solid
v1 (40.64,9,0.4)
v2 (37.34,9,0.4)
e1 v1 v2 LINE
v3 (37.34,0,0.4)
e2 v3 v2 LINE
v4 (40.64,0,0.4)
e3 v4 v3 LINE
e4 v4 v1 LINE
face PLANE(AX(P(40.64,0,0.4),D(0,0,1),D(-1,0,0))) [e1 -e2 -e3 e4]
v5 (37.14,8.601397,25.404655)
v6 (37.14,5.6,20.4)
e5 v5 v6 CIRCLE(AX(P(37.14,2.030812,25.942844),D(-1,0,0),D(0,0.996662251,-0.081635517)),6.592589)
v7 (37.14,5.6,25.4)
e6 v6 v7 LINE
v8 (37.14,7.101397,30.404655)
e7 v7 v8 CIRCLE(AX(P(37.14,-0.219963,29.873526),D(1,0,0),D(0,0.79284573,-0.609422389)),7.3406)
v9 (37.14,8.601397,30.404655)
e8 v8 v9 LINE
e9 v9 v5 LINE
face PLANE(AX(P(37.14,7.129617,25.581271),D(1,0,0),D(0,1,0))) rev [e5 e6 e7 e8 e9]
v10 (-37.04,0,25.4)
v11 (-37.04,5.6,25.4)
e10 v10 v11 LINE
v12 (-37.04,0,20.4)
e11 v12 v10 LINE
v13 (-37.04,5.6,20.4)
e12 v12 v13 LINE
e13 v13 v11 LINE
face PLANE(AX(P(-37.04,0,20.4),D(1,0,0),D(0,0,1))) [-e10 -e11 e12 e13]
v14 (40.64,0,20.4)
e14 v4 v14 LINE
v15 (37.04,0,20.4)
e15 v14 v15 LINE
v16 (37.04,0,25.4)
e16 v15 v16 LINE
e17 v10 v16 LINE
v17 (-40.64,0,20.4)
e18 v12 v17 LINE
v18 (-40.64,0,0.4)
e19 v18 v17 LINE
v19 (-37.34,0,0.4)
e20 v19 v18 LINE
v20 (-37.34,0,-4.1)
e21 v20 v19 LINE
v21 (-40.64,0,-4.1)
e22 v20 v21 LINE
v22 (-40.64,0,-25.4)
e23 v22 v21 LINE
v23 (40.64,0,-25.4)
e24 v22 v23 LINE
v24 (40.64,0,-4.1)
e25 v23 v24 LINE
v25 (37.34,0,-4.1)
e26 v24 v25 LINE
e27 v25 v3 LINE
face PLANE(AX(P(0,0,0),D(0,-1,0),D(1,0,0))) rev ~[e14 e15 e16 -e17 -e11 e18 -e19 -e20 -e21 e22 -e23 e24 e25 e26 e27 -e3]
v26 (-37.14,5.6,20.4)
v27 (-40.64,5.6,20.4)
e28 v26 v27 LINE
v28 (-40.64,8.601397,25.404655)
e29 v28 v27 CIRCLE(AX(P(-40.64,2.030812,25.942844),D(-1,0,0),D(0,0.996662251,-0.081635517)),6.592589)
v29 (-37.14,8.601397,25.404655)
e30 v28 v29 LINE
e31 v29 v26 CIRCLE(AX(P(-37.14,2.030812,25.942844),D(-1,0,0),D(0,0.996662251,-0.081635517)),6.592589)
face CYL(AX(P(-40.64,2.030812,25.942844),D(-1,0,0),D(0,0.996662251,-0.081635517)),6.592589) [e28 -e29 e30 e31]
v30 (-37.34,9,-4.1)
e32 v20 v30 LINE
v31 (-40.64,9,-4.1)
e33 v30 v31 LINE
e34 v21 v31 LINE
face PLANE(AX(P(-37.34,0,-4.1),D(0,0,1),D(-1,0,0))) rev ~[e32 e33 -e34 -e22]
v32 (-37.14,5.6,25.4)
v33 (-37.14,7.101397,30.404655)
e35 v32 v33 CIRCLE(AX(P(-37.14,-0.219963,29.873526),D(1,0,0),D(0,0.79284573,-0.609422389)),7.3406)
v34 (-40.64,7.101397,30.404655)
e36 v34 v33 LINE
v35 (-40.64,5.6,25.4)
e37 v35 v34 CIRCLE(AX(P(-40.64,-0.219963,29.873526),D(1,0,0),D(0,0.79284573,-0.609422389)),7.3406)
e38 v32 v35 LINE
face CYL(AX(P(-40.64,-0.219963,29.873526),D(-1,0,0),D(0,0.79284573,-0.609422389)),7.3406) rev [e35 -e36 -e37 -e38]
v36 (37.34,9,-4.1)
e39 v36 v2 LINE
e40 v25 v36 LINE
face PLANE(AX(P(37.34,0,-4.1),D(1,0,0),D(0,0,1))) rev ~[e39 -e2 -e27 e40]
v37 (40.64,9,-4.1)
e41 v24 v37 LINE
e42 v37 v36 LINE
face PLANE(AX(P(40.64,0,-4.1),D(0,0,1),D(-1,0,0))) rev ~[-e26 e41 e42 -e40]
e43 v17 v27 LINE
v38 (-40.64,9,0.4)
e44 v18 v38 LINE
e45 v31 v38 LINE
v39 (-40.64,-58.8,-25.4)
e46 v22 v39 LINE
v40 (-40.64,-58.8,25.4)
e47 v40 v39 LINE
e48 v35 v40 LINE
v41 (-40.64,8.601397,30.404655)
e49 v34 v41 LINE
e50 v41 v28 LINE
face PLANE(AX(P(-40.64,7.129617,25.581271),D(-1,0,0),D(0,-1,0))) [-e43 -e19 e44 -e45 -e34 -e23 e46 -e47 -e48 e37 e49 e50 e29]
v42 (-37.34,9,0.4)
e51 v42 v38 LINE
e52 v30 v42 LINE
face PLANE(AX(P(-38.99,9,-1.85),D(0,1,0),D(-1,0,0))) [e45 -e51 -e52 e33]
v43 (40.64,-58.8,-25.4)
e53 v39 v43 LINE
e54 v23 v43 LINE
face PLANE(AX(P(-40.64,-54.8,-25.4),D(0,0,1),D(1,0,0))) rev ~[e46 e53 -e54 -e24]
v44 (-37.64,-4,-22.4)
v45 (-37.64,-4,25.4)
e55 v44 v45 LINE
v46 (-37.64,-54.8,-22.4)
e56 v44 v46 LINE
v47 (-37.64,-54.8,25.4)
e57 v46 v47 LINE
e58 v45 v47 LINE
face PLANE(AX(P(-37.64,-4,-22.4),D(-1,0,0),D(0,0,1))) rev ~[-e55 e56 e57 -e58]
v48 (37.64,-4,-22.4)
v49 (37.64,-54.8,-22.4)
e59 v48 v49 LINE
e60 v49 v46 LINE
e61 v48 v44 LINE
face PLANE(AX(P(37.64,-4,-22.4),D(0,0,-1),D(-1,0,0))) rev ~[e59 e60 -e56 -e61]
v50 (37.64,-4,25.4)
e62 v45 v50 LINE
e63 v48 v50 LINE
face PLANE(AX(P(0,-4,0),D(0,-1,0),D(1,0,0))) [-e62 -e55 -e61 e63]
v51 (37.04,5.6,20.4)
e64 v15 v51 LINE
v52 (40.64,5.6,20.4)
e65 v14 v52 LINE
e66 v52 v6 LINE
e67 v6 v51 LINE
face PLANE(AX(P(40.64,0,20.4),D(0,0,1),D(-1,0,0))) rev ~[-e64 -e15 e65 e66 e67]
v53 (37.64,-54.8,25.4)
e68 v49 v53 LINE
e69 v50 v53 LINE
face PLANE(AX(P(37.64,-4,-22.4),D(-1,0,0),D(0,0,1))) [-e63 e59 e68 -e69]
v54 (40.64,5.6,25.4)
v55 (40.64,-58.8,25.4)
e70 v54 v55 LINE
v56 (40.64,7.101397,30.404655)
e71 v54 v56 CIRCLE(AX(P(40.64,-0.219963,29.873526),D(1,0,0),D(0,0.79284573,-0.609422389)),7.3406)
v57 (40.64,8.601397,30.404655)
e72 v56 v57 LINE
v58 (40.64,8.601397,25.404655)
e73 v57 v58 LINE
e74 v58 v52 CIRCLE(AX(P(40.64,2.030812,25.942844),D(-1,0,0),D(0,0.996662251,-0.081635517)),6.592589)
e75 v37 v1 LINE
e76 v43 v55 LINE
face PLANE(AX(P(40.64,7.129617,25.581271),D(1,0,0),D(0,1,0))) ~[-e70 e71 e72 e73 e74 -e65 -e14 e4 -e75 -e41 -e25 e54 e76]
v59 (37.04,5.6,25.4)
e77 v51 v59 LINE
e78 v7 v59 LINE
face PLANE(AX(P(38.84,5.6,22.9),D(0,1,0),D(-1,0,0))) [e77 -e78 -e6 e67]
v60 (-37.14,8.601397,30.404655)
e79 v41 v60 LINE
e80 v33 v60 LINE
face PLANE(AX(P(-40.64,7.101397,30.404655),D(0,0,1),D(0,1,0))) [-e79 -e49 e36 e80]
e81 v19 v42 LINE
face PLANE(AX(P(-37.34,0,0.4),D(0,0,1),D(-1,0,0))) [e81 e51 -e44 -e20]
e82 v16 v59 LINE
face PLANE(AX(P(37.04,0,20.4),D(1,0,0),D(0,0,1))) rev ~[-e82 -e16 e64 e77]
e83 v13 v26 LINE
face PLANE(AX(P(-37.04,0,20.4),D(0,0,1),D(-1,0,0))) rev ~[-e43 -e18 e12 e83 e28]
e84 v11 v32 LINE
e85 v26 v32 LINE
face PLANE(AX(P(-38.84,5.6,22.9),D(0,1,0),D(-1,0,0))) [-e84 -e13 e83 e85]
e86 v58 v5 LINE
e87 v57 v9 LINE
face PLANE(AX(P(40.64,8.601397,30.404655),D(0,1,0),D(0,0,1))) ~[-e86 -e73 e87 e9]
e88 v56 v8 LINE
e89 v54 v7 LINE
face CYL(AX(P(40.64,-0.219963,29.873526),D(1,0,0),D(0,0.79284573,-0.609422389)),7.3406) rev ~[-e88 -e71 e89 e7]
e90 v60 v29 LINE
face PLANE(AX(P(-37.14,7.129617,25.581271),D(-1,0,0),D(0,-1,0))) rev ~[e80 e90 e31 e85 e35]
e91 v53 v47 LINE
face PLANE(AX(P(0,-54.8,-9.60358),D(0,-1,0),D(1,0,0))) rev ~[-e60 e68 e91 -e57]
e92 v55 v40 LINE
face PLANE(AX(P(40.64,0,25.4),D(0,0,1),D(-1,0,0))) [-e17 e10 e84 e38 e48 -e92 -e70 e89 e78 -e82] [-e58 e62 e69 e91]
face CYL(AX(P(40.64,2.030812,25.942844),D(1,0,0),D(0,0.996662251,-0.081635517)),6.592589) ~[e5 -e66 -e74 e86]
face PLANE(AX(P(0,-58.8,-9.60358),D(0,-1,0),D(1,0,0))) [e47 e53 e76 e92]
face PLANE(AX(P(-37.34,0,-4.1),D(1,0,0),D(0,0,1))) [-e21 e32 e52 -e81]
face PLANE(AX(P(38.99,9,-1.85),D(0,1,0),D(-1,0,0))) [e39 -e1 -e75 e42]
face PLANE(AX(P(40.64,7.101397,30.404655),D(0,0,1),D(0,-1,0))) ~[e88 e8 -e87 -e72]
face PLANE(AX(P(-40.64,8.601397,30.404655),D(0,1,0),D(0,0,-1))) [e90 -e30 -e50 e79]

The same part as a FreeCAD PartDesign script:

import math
import FreeCAD as App
import Part
import Sketcher
from FreeCAD import Vector


def add_polygon(sketch, points):
    """Adds a closed chain of lines whose ends are joined by coincident constraints."""
    first, n = sketch.GeometryCount, len(points)
    for a, b in zip(points, points[1:] + points[:1]):
        sketch.addGeometry(Part.LineSegment(App.Vector(*a, 0), App.Vector(*b, 0)), False)
    for i in range(n):
        sketch.addConstraint(Sketcher.Constraint("Coincident", first + i, 2, first + (i + 1) % n, 1))

doc = App.newDocument("Part")
body = doc.addObject("PartDesign::Body", "Body")

# Sketch on XZ plane
sketch1 = body.newObject("Sketcher::SketchObject", "Sketch")
sketch1.AttachmentSupport = (doc.getObject("XZ_Plane"), [""])
sketch1.MapMode = "FlatFace"
add_polygon(sketch1, [(-41, 25), (-41, -25), (41, -25), (41, 25)])  # lines 0-3
sketch1.addConstraint([
    Sketcher.Constraint("Vertical", 0),
    Sketcher.Constraint("Horizontal", 1),
    Sketcher.Constraint("Vertical", 2),
    Sketcher.Constraint("Horizontal", 3),
    Sketcher.Constraint("Symmetric", 0, 2, 2, 2, -1, 1),
    Sketcher.Constraint("DistanceY", 0, 2, 0, 1, 50.8),
    Sketcher.Constraint("DistanceX", 1, 1, 1, 2, 81.28),
])
pad1 = body.newObject("PartDesign::Pad", "Pad")
pad1.Profile = sketch1
pad1.Length = 4

# Sketch on XZ plane
sketch2 = body.newObject("Sketcher::SketchObject", "Sketch001")
sketch2.AttachmentSupport = (doc.getObject("XZ_Plane"), [""])
sketch2.MapMode = "FlatFace"
sketch2.AttachmentOffset = App.Placement(Vector(0, 0, 4), App.Rotation())
add_polygon(sketch2, [(-40.6, 25.4), (-40.6, -25.4), (40.6, -25.4), (40.6, 25.4), (37.6, 25.4), (37.6, -22.4), (-37.6, -22.4), (-37.6, 25.4)])  # lines 0-7
sketch2.addConstraint([
    Sketcher.Constraint("Vertical", 0),
    Sketcher.Constraint("Horizontal", 1),
    Sketcher.Constraint("Vertical", 2),
    Sketcher.Constraint("Horizontal", 3),
    Sketcher.Constraint("Vertical", 4),
    Sketcher.Constraint("Horizontal", 5),
    Sketcher.Constraint("Vertical", 6),
    Sketcher.Constraint("Horizontal", 7),
    Sketcher.Constraint("Symmetric", 0, 2, 2, 2, -1, 1),
    Sketcher.Constraint("Symmetric", 3, 2, 6, 2, -2),
    Sketcher.Constraint("DistanceX", 3, 2, 3, 1, 3.0),
    Sketcher.Constraint("DistanceY", 0, 2, 0, 1, 50.8),
    Sketcher.Constraint("DistanceY", 4, 2, 4, 1, 47.8),
    Sketcher.Constraint("DistanceX", 1, 1, 1, 2, 81.28),
])
pad2 = body.newObject("PartDesign::Pad", "Pad001")
pad2.Profile = sketch2
pad2.Length = 50.8

# Sketch on XZ plane
sketch3 = body.newObject("Sketcher::SketchObject", "Sketch002")
sketch3.AttachmentSupport = (doc.getObject("XZ_Plane"), [""])
sketch3.MapMode = "FlatFace"
sketch3.AttachmentOffset = App.Placement(Vector(0, 0, 54.8), App.Rotation())
add_polygon(sketch3, [(-41, 25), (-41, -25), (41, -25), (41, 25)])  # lines 0-3
sketch3.addConstraint([
    Sketcher.Constraint("Vertical", 0),
    Sketcher.Constraint("Horizontal", 1),
    Sketcher.Constraint("Vertical", 2),
    Sketcher.Constraint("Horizontal", 3),
    Sketcher.Constraint("Symmetric", 0, 2, 2, 2, -1, 1),
    Sketcher.Constraint("DistanceY", 0, 2, 0, 1, 50.8),
    Sketcher.Constraint("DistanceX", 1, 1, 1, 2, 81.28),
])
pad3 = body.newObject("PartDesign::Pad", "Pad002")
pad3.Profile = sketch3
pad3.Length = 4

# Sketch on XZ plane
sketch4 = body.newObject("Sketcher::SketchObject", "Sketch003")
sketch4.AttachmentSupport = (doc.getObject("XZ_Plane"), [""])
sketch4.MapMode = "FlatFace"
add_polygon(sketch4, [(40.6, 25.4), (40.6, 20.4), (37, 20.4), (37, 25.4)])  # lines 0-3
add_polygon(sketch4, [(-37, 25.4), (-37, 20.4), (-40.6, 20.4), (-40.6, 25.4)])  # lines 4-7
sketch4.addConstraint([
    Sketcher.Constraint("Vertical", 0),
    Sketcher.Constraint("Horizontal", 1),
    Sketcher.Constraint("Vertical", 2),
    Sketcher.Constraint("Horizontal", 3),
    Sketcher.Constraint("Vertical", 4),
    Sketcher.Constraint("Horizontal", 5),
    Sketcher.Constraint("Vertical", 6),
    Sketcher.Constraint("Horizontal", 7),
    Sketcher.Constraint("Symmetric", 1, 2, 4, 2, -2),
    Sketcher.Constraint("Symmetric", 3, 2, 6, 2, -2),
    Sketcher.Constraint("DistanceY", 0, 2, 0, 1, 5.0),
    Sketcher.Constraint("DistanceX", 1, 2, 1, 1, 3.6),
    Sketcher.Constraint("DistanceY", -1, 1, 0, 2, 20.4),
    Sketcher.Constraint("DistanceX", -1, 1, 0, 2, 40.64),
])
pad4 = body.newObject("PartDesign::Pad", "Pad003")
pad4.Profile = sketch4
pad4.Length = 5.6
pad4.Reversed = True

# Sketch on XZ plane
sketch5 = body.newObject("Sketcher::SketchObject", "Sketch004")
sketch5.AttachmentSupport = (doc.getObject("XZ_Plane"), [""])
sketch5.MapMode = "FlatFace"
add_polygon(sketch5, [(-37.3, 0.4), (-37.3, -4.1), (-40.6, -4.1), (-40.6, 0.4)])  # lines 0-3
add_polygon(sketch5, [(40.6, 0.4), (40.6, -4.1), (37.3, -4.1), (37.3, 0.4)])  # lines 4-7
sketch5.addConstraint([
    Sketcher.Constraint("Vertical", 0),
    Sketcher.Constraint("Horizontal", 1),
    Sketcher.Constraint("Vertical", 2),
    Sketcher.Constraint("Horizontal", 3),
    Sketcher.Constraint("Vertical", 4),
    Sketcher.Constraint("Horizontal", 5),
    Sketcher.Constraint("Vertical", 6),
    Sketcher.Constraint("Horizontal", 7),
    Sketcher.Constraint("Symmetric", 1, 2, 4, 2, -2),
    Sketcher.Constraint("Symmetric", 3, 2, 6, 2, -2),
    Sketcher.Constraint("DistanceX", 1, 2, 1, 1, 3.3),
    Sketcher.Constraint("DistanceY", 0, 2, 0, 1, 4.5),
    Sketcher.Constraint("DistanceY", 0, 2, -1, 1, 4.1),
    Sketcher.Constraint("DistanceX", 0, 2, -1, 1, 37.34),
])
pad5 = body.newObject("PartDesign::Pad", "Pad004")
pad5.Profile = sketch5
pad5.Length = 9
pad5.Reversed = True

# Sketch on YZ plane
sketch6 = body.newObject("Sketcher::SketchObject", "Sketch005")
sketch6.AttachmentSupport = (doc.getObject("YZ_Plane"), [""])
sketch6.MapMode = "FlatFace"
sketch6.AttachmentOffset = App.Placement(Vector(0, 0, -40.64), App.Rotation())
sketch6.addGeometry([
    Part.LineSegment(Vector(8.6, 30.4, 0), Vector(8.6, 25.4, 0)),  # 0
    Part.ArcOfCircle(Part.Circle(Vector(2, 25.9, 0), Vector(0, 0, 1), 6.6), math.radians(-57), math.radians(-5)),  # 1
    Part.LineSegment(Vector(5.6, 20.4, 0), Vector(5.6, 25.4, 0)),  # 2
    Part.ArcOfCircle(Part.Circle(Vector(-0.2, 29.9, 0), Vector(0, 0, 1), 7.3), math.radians(-38), math.radians(4)),  # 3
    Part.LineSegment(Vector(7.1, 30.4, 0), Vector(8.6, 30.4, 0)),  # 4
], False)
sketch6.addConstraint([
    Sketcher.Constraint("Coincident", 0, 2, 1, 2),
    Sketcher.Constraint("Coincident", 1, 1, 2, 1),
    Sketcher.Constraint("Coincident", 2, 2, 3, 1),
    Sketcher.Constraint("Coincident", 3, 2, 4, 1),
    Sketcher.Constraint("Coincident", 4, 2, 0, 1),
    Sketcher.Constraint("Vertical", 0),
    Sketcher.Constraint("Vertical", 2),
    Sketcher.Constraint("Horizontal", 4),
    Sketcher.Constraint("Equal", 0, 2),
    Sketcher.Constraint("DistanceY", 0, 2, 0, 1, 5.0),
    Sketcher.Constraint("DistanceX", 4, 1, 4, 2, 1.5),
    Sketcher.Constraint("DistanceX", -1, 1, 1, 1, 5.6),
    Sketcher.Constraint("DistanceY", -1, 1, 1, 1, 20.4),
    Sketcher.Constraint("Radius", 3, 7.3406),
    Sketcher.Constraint("Radius", 1, 6.592589),
    Sketcher.Constraint("DistanceY", 1, 3, 3, 3, 3.930682),
    Sketcher.Constraint("DistanceY", 0, 2, 1, 3, 0.538189),
])
pad6 = body.newObject("PartDesign::Pad", "Pad005")
pad6.Profile = sketch6
pad6.Length = 3.5
body2 = doc.addObject("PartDesign::Body", "Body001")
doc.recompute()

body2.BaseFeature = body
doc.recompute()

mirroring = doc.addObject("Part::Mirroring", "Mirroring")
mirroring.Source = body
mirroring.Base = Vector(0, 0, 0)
mirroring.Normal = Vector(1, 0, 0)
body3 = doc.addObject("PartDesign::Body", "Body002")
body3.BaseFeature = mirroring
boolean = body2.newObject("PartDesign::Boolean", "Boolean")
boolean.Type = "Fuse"
boolean.addObjects([body3])
doc.recompute()
mirroring.Visibility = False

doc.recompute()
